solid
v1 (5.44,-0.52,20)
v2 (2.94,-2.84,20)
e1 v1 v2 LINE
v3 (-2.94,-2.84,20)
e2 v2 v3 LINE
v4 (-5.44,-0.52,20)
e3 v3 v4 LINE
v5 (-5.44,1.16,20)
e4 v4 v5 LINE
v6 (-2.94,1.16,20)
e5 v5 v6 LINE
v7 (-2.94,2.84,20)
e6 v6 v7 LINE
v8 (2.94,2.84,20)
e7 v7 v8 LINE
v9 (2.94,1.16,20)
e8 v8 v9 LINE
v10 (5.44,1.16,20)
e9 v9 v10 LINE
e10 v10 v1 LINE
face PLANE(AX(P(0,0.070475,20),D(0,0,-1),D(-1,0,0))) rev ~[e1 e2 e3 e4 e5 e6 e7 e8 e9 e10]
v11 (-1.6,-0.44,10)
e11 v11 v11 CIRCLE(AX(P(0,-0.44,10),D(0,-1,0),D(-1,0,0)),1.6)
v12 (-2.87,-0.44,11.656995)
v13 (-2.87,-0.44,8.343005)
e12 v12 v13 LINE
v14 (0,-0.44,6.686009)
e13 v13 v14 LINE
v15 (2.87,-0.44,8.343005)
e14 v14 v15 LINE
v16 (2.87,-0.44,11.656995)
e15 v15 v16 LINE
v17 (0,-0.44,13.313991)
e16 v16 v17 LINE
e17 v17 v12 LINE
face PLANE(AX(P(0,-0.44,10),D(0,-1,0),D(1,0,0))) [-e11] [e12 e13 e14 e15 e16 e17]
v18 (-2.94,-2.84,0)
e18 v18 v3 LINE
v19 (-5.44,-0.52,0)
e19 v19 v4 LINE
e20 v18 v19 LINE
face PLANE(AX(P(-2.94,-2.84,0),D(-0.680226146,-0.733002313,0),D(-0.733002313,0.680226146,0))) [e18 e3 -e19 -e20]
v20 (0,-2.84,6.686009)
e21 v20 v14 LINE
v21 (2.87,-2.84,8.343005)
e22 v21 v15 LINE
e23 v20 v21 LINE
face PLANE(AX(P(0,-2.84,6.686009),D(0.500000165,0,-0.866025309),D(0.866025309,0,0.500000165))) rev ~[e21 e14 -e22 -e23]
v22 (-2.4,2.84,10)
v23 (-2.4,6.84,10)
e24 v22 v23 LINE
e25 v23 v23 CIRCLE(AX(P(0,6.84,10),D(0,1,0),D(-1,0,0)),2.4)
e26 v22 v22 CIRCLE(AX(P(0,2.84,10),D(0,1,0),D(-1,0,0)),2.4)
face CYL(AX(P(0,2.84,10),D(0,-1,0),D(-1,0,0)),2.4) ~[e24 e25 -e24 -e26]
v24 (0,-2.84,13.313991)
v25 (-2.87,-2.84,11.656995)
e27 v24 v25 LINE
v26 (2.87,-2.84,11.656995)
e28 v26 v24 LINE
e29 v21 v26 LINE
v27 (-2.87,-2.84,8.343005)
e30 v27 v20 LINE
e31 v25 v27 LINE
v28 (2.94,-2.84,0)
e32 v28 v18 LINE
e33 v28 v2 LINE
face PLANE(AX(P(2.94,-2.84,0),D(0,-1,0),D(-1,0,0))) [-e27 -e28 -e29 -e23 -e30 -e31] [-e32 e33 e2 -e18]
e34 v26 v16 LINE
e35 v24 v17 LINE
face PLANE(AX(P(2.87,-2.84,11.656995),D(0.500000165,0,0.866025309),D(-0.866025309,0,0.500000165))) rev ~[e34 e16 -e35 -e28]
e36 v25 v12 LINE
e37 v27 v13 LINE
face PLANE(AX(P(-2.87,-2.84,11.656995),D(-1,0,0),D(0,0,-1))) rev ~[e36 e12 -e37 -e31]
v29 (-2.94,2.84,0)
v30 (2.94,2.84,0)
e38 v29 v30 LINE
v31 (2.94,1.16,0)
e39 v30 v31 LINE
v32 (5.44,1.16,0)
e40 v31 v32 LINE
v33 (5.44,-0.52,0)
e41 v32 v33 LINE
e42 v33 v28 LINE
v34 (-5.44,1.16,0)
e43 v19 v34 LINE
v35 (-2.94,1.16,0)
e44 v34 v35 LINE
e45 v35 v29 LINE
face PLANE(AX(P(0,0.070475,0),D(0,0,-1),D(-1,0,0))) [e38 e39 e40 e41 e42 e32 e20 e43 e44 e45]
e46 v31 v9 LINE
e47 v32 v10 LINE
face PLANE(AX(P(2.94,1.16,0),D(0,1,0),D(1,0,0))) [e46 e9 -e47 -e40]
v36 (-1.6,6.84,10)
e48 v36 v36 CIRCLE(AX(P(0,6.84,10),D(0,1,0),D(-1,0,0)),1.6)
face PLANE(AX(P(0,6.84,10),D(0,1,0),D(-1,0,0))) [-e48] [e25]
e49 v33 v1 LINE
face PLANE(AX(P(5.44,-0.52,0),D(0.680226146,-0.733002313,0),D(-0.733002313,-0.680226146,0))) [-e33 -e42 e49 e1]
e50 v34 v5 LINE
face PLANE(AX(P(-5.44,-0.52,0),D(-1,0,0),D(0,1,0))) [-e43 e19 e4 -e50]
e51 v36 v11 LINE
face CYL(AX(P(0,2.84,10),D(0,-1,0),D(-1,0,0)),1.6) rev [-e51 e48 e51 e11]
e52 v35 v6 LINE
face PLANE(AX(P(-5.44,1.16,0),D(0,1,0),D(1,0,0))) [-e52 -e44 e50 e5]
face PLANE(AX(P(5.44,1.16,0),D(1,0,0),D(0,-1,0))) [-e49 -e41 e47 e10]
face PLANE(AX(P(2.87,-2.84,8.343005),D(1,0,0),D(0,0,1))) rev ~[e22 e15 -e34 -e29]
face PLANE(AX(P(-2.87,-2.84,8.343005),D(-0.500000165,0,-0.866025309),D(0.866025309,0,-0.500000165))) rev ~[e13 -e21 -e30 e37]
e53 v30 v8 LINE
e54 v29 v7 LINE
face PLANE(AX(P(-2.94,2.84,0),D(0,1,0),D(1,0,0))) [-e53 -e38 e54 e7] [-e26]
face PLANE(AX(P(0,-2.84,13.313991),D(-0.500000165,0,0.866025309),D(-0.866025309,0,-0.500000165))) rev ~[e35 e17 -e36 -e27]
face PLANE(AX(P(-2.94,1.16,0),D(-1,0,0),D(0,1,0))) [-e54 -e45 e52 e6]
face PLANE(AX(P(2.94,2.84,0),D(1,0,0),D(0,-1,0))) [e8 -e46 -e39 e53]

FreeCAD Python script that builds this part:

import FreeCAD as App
import Part
import Sketcher
Q = App.Units.Quantity

doc = App.newDocument("Part")
params = doc.addObject("Spreadsheet::Sheet", "Params")
for row, (alias, value) in enumerate([
    ("sketch1_width", "2.5 mm"),
    ("sketch1_width2", "5.88 mm"),
    ("sketch1_height", "1.68 mm"),
    ("pad1_length", "20 mm"),
    ("sketch2_diameter", "3.2 mm"),
    ("pocket1_length", "5.68 mm"),
    ("sketch3_diameter", "4.8 mm"),
    ("sketch3_diameter2", "3.2 mm"),
    ("pad2_length", "4 mm"),
    ("sketch4_diameter", "3.2 mm"),
    ("pocket2_length", "2.4 mm"),
], start=1):
    params.set(f"A{row}", alias)
    params.set(f"B{row}", "=" + value)
    params.setAlias(f"B{row}", alias)

body = doc.addObject("PartDesign::Body", "Body")

# Sketch on XY plane
sketch1 = body.newObject("Sketcher::SketchObject", "Sketch")
sketch1.AttachmentSupport = (doc.getObject("XY_Plane"), [""])
sketch1.MapMode = "FlatFace"
sketch1.addGeometry([
    Part.LineSegment(App.Vector(-2.9, -2.8, 0), App.Vector(2.9, -2.8, 0)),  # 0
    Part.LineSegment(App.Vector(2.9, -2.8, 0), App.Vector(5.4, -0.5, 0)),  # 1
    Part.LineSegment(App.Vector(5.4, -0.5, 0), App.Vector(5.4, 1.2, 0)),  # 2
    Part.LineSegment(App.Vector(5.4, 1.2, 0), App.Vector(2.9, 1.2, 0)),  # 3
    Part.LineSegment(App.Vector(2.9, 1.2, 0), App.Vector(2.9, 2.8, 0)),  # 4
    Part.LineSegment(App.Vector(2.9, 2.8, 0), App.Vector(-2.9, 2.8, 0)),  # 5
    Part.LineSegment(App.Vector(-2.9, 2.8, 0), App.Vector(-2.9, 1.2, 0)),  # 6
    Part.LineSegment(App.Vector(-2.9, 1.2, 0), App.Vector(-5.4, 1.2, 0)),  # 7
    Part.LineSegment(App.Vector(-5.4, 1.2, 0), App.Vector(-5.4, -0.5, 0)),  # 8
    Part.LineSegment(App.Vector(-5.4, -0.5, 0), App.Vector(-2.9, -2.8, 0)),  # 9
], False)
sketch1.addConstraint([
    Sketcher.Constraint("Coincident", 0, 2, 1, 1),
    Sketcher.Constraint("Coincident", 1, 2, 2, 1),
    Sketcher.Constraint("Coincident", 2, 2, 3, 1),
    Sketcher.Constraint("Coincident", 3, 2, 4, 1),
    Sketcher.Constraint("Coincident", 4, 2, 5, 1),
    Sketcher.Constraint("Coincident", 5, 2, 6, 1),
    Sketcher.Constraint("Coincident", 6, 2, 7, 1),
    Sketcher.Constraint("Coincident", 7, 2, 8, 1),
    Sketcher.Constraint("Coincident", 8, 2, 9, 1),
    Sketcher.Constraint("Coincident", 9, 2, 0, 1),
    Sketcher.Constraint("Horizontal", 0),
    Sketcher.Constraint("Vertical", 2),
    Sketcher.Constraint("Horizontal", 3),
    Sketcher.Constraint("Vertical", 4),
    Sketcher.Constraint("Horizontal", 5),
    Sketcher.Constraint("Vertical", 6),
    Sketcher.Constraint("Horizontal", 7),
    Sketcher.Constraint("Vertical", 8),
    Sketcher.Constraint("Symmetric", 0, 2, 5, 2, -1, 1),
    Sketcher.Constraint("Symmetric", 3, 2, 6, 2, -2),
    Sketcher.Constraint("Symmetric", 1, 2, 8, 2, -2),
    Sketcher.Constraint("Vertical", 6, 2, 9, 2),
    Sketcher.Constraint("Equal", 2, 4),
    Sketcher.Constraint("DistanceX", 3, 2, 3, 1, 2.5),
    Sketcher.Constraint("DistanceY", 0, 2, 2, 2, 4.0),
    Sketcher.Constraint("DistanceX", 0, 1, 0, 2, 5.88),
    Sketcher.Constraint("DistanceY", 2, 1, 2, 2, 1.68),
])
sketch1.setExpression("Constraints[23]", "Params.sketch1_width")
sketch1.setExpression("Constraints[25]", "Params.sketch1_width2")
sketch1.setExpression("Constraints[26]", "Params.sketch1_height")
pad1 = body.newObject("PartDesign::Pad", "Pad")
pad1.Profile = sketch1
pad1.setExpression("Length", "Params.pad1_length")

# Sketch on XZ plane
sketch2 = body.newObject("Sketcher::SketchObject", "Sketch001")
sketch2.AttachmentSupport = (doc.getObject("XZ_Plane"), [""])
sketch2.MapMode = "FlatFace"
sketch2.AttachmentOffset = App.Placement(App.Vector(0, 0, -2.84), App.Rotation())
sketch2.addGeometry(Part.Circle(App.Vector(0, 10, 0), App.Vector(0, 0, 1), 1.6), False)
sketch2.addConstraint([
    Sketcher.Constraint("PointOnObject", 0, 3, -2),
    Sketcher.Constraint("Diameter", 0, 3.2),
    Sketcher.Constraint("DistanceY", -1, 1, 0, 3, 10.0),
])
sketch2.setExpression("Constraints[1]", "Params.sketch2_diameter")
pocket1 = body.newObject("PartDesign::Pocket", "Pocket")
pocket1.Profile = sketch2
pocket1.setExpression("Length", "Params.pocket1_length")
pocket1.Reversed = True

# Sketch on XZ plane
sketch3 = body.newObject("Sketcher::SketchObject", "Sketch002")
sketch3.AttachmentSupport = (doc.getObject("XZ_Plane"), [""])
sketch3.MapMode = "FlatFace"
sketch3.AttachmentOffset = App.Placement(App.Vector(0, 0, -2.84), App.Rotation())
sketch3.addGeometry([
    Part.Circle(App.Vector(0, 10, 0), App.Vector(0, 0, 1), 2.4),
    Part.Circle(App.Vector(0, 10, 0), App.Vector(0, 0, 1), 1.6),
], False)
sketch3.addConstraint([
    Sketcher.Constraint("Coincident", 1, 3, 0, 3),
    Sketcher.Constraint("PointOnObject", 0, 3, -2),
    Sketcher.Constraint("Diameter", 0, 4.8),
    Sketcher.Constraint("Diameter", 1, 3.2),
    Sketcher.Constraint("DistanceY", -1, 1, 0, 3, 10.0),
])
sketch3.setExpression("Constraints[2]", "Params.sketch3_diameter")
sketch3.setExpression("Constraints[3]", "Params.sketch3_diameter2")
pad2 = body.newObject("PartDesign::Pad", "Pad001")
pad2.Profile = sketch3
pad2.setExpression("Length", "Params.pad2_length")
pad2.Reversed = True

# Sketch on XZ plane
sketch4 = body.newObject("Sketcher::SketchObject", "Sketch003")
sketch4.AttachmentSupport = (doc.getObject("XZ_Plane"), [""])
sketch4.MapMode = "FlatFace"
sketch4.AttachmentOffset = App.Placement(App.Vector(0, 0, 2.84), App.Rotation())
sketch4.addGeometry([
    Part.LineSegment(App.Vector(0, 6.7, 0), App.Vector(2.9, 8.3, 0)),  # 0
    Part.LineSegment(App.Vector(2.9, 8.3, 0), App.Vector(2.9, 11.7, 0)),  # 1
    Part.LineSegment(App.Vector(2.9, 11.7, 0), App.Vector(0, 13.3, 0)),  # 2
    Part.LineSegment(App.Vector(0, 13.3, 0), App.Vector(-2.9, 11.7, 0)),  # 3
    Part.LineSegment(App.Vector(-2.9, 11.7, 0), App.Vector(-2.9, 8.3, 0)),  # 4
    Part.LineSegment(App.Vector(-2.9, 8.3, 0), App.Vector(0, 6.7, 0)),  # 5
    Part.Circle(App.Vector(0, 10, 0), App.Vector(0, 0, 1), 1.6),  # 6
], False)
sketch4.addConstraint([
    Sketcher.Constraint("Coincident", 0, 2, 1, 1),
    Sketcher.Constraint("Coincident", 1, 2, 2, 1),
    Sketcher.Constraint("Coincident", 2, 2, 3, 1),
    Sketcher.Constraint("Coincident", 3, 2, 4, 1),
    Sketcher.Constraint("Coincident", 4, 2, 5, 1),
    Sketcher.Constraint("Coincident", 5, 2, 0, 1),
    Sketcher.Constraint("Vertical", 1),
    Sketcher.Constraint("Vertical", 4),
    Sketcher.Constraint("Symmetric", 1, 2, 3, 2, -2),
    Sketcher.Constraint("PointOnObject", 6, 3, -2),
    Sketcher.Constraint("PointOnObject", 2, 2, -2),
    Sketcher.Constraint("PointOnObject", 5, 2, -2),
    Sketcher.Constraint("Parallel", 0, 3),
    Sketcher.Constraint("Parallel", 2, 5),
    Sketcher.Constraint("Diameter", 6, 3.2),
    Sketcher.Constraint("Angle", 0, Q("30.000011 deg")),
    Sketcher.Constraint("DistanceY", -1, 1, 6, 3, 10.0),
    Sketcher.Constraint("DistanceX", -1, 1, 0, 2, 2.87),
    Sketcher.Constraint("DistanceY", 1, 1, 1, 2, 3.31399),
    Sketcher.Constraint("DistanceY", -1, 1, 2, 2, 13.313991),
])
sketch4.setExpression("Constraints[14]", "Params.sketch4_diameter")
pocket2 = body.newObject("PartDesign::Pocket", "Pocket001")
pocket2.Profile = sketch4
pocket2.setExpression("Length", "Params.pocket2_length")

doc.recompute()
